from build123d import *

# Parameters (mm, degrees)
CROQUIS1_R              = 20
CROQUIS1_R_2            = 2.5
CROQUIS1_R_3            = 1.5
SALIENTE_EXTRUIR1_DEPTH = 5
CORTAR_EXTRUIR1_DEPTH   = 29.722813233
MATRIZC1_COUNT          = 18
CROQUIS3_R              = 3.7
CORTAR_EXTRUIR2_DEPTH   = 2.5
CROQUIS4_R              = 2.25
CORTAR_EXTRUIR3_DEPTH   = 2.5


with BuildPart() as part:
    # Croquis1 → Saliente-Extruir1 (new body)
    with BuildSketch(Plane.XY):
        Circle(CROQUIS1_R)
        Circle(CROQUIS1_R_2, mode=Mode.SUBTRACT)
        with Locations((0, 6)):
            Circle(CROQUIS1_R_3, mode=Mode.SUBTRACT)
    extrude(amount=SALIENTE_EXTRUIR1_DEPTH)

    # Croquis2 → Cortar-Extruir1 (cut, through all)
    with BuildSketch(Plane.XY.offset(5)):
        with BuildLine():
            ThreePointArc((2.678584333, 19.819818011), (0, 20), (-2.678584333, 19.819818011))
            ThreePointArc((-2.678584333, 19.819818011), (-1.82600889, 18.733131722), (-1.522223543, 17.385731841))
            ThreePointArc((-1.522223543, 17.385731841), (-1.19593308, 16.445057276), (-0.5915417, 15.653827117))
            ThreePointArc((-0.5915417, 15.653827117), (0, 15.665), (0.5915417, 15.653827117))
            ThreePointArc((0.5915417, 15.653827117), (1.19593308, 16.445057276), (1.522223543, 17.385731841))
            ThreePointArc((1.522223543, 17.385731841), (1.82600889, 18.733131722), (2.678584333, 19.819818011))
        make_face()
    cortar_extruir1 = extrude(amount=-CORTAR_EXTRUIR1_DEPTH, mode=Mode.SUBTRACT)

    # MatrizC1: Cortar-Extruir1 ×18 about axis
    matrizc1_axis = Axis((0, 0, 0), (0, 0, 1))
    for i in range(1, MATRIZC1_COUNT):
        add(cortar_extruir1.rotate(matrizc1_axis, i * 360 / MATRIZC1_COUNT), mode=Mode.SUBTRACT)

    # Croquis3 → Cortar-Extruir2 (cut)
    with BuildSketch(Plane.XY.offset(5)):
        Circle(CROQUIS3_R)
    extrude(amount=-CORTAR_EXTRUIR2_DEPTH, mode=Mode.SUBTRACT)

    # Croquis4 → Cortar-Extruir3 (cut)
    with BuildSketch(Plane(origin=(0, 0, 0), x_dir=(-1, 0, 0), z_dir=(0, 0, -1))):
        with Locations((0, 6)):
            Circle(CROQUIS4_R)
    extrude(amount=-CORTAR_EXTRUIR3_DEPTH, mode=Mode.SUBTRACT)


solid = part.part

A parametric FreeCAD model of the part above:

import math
import FreeCAD as App
import Part
import Sketcher

V = App.Vector

doc = App.newDocument("Part")
body = doc.addObject("PartDesign::Body", "Body")

sketch1 = body.newObject("Sketcher::SketchObject", "Sketch")
sketch1.AttachmentSupport = (doc.getObject("XY_Plane"), [""])
sketch1.MapMode = "FlatFace"
sketch1.addGeometry(Part.Circle(V(0, 0, 0), V(0, 0, 1), 20), False)
sketch1.addGeometry(Part.Circle(V(0, 0, 0), V(0, 0, 1), 2.5), False)
sketch1.addGeometry(Part.Circle(V(0, 6, 0), V(0, 0, 1), 1.5), False)
sketch1.addConstraint(Sketcher.Constraint("Coincident", 0, 3, -1, 1))
sketch1.addConstraint(Sketcher.Constraint("Coincident", 1, 3, -1, 1))
sketch1.addConstraint(Sketcher.Constraint("PointOnObject", 2, 3, -2))
sketch1.addConstraint(Sketcher.Constraint("Diameter", 0, 40.0))
sketch1.addConstraint(Sketcher.Constraint("Diameter", 1, 5.0))
sketch1.addConstraint(Sketcher.Constraint("Diameter", 2, 3.0))
sketch1.addConstraint(Sketcher.Constraint("DistanceY", -1, 1, 2, 3, 6.0))
pad1 = body.newObject("PartDesign::Pad", "Pad")
pad1.Profile = sketch1
pad1.Length = 5

sketch2 = body.newObject("Sketcher::SketchObject", "Sketch001")
sketch2.AttachmentSupport = (doc.getObject("XY_Plane"), [""])
sketch2.MapMode = "FlatFace"
sketch2.AttachmentOffset = App.Placement(V(0, 0, 5), App.Rotation())
sketch2.addGeometry(Part.ArcOfCircle(Part.Circle(V(0, 0, 0), V(0, 0, 1), 20), math.radians(82.3), math.radians(97.7)), False)
sketch2.addGeometry(Part.ArcOfCircle(Part.Circle(V(-4.7, 17.4, 0), V(0, 0, 1), 3.1), math.radians(0), math.radians(51)), False)
sketch2.addGeometry(Part.ArcOfCircle(Part.Circle(V(1.6, 17.9, 0), V(0, 0, 1), 3.1), math.radians(-170), math.radians(-134)), False)
sketch2.addGeometry(Part.ArcOfCircle(Part.Circle(V(0, 0, 0), V(0, 0, 1), 15.7), math.radians(87.84), math.radians(92.16)), False)
sketch2.addGeometry(Part.ArcOfCircle(Part.Circle(V(-1.6, 17.9, 0), V(0, 0, 1), 3.1), math.radians(-46), math.radians(-10)), False)
sketch2.addGeometry(Part.ArcOfCircle(Part.Circle(V(4.7, 17.4, 0), V(0, 0, 1), 3.1), math.radians(129), math.radians(180)), False)
sketch2.addConstraint(Sketcher.Constraint("Coincident", 0, 2, 1, 2))
sketch2.addConstraint(Sketcher.Constraint("Coincident", 1, 1, 2, 1))
sketch2.addConstraint(Sketcher.Constraint("Coincident", 2, 2, 3, 2))
sketch2.addConstraint(Sketcher.Constraint("Coincident", 3, 1, 4, 1))
sketch2.addConstraint(Sketcher.Constraint("Coincident", 4, 2, 5, 2))
sketch2.addConstraint(Sketcher.Constraint("Coincident", 5, 1, 0, 1))
sketch2.addConstraint(Sketcher.Constraint("Coincident", 0, 3, -1, 1))
sketch2.addConstraint(Sketcher.Constraint("Coincident", 3, 3, -1, 1))
sketch2.addConstraint(Sketcher.Constraint("Equal", 1, 2))
sketch2.addConstraint(Sketcher.Constraint("Equal", 2, 4))
sketch2.addConstraint(Sketcher.Constraint("Equal", 4, 5))
sketch2.addConstraint(Sketcher.Constraint("Symmetric", 2, 3, 4, 3, -2))
sketch2.addConstraint(Sketcher.Constraint("Symmetric", 1, 3, 5, 3, -2))
sketch2.addConstraint(Sketcher.Constraint("Horizontal", 5, 3, 1, 1))
sketch2.addConstraint(Sketcher.Constraint("Radius", 0, 20.0))
sketch2.addConstraint(Sketcher.Constraint("Radius", 1, 3.14))
sketch2.addConstraint(Sketcher.Constraint("Radius", 3, 15.665))
sketch2.addConstraint(Sketcher.Constraint("DistanceX", -1, 1, 2, 3, 1.57))
sketch2.addConstraint(Sketcher.Constraint("DistanceY", -1, 1, 2, 3, 17.9314))
sketch2.addConstraint(Sketcher.Constraint("DistanceY", -1, 1, 1, 3, 17.385732))
pocket1 = body.newObject("PartDesign::Pocket", "Pocket")
pocket1.Profile = sketch2
pocket1.Type = "ThroughAll"
doc.recompute()

polarpattern = body.newObject("PartDesign::PolarPattern", "PolarPattern")
polarpattern.Originals = [pocket1]
polarpattern.Axis = (doc.getObject("Z_Axis"), [""])
polarpattern.Angle = 360
polarpattern.Occurrences = 18
body.Tip = polarpattern

sketch3 = body.newObject("Sketcher::SketchObject", "Sketch002")
sketch3.AttachmentSupport = (doc.getObject("XY_Plane"), [""])
sketch3.MapMode = "FlatFace"
sketch3.AttachmentOffset = App.Placement(V(0, 0, 5), App.Rotation())
sketch3.addGeometry(Part.Circle(V(0, 0, 0), V(0, 0, 1), 3.7), False)
sketch3.addConstraint(Sketcher.Constraint("Coincident", 0, 3, -1, 1))
sketch3.addConstraint(Sketcher.Constraint("Diameter", 0, 7.4))
pocket2 = body.newObject("PartDesign::Pocket", "Pocket001")
pocket2.Profile = sketch3
pocket2.Length = 2.5

sketch4 = body.newObject("Sketcher::SketchObject", "Sketch003")
sketch4.AttachmentSupport = (doc.getObject("XY_Plane"), [""])
sketch4.MapMode = "FlatFace"
sketch4.addGeometry(Part.Circle(V(0, 6, 0), V(0, 0, 1), 2.2), False)
sketch4.addConstraint(Sketcher.Constraint("PointOnObject", 0, 3, -2))
sketch4.addConstraint(Sketcher.Constraint("Diameter", 0, 4.5))
sketch4.addConstraint(Sketcher.Constraint("DistanceY", -1, 1, 0, 3, 6.0))
pocket3 = body.newObject("PartDesign::Pocket", "Pocket002")
pocket3.Profile = sketch4
pocket3.Length = 2.5
pocket3.Reversed = True

doc.recompute()
